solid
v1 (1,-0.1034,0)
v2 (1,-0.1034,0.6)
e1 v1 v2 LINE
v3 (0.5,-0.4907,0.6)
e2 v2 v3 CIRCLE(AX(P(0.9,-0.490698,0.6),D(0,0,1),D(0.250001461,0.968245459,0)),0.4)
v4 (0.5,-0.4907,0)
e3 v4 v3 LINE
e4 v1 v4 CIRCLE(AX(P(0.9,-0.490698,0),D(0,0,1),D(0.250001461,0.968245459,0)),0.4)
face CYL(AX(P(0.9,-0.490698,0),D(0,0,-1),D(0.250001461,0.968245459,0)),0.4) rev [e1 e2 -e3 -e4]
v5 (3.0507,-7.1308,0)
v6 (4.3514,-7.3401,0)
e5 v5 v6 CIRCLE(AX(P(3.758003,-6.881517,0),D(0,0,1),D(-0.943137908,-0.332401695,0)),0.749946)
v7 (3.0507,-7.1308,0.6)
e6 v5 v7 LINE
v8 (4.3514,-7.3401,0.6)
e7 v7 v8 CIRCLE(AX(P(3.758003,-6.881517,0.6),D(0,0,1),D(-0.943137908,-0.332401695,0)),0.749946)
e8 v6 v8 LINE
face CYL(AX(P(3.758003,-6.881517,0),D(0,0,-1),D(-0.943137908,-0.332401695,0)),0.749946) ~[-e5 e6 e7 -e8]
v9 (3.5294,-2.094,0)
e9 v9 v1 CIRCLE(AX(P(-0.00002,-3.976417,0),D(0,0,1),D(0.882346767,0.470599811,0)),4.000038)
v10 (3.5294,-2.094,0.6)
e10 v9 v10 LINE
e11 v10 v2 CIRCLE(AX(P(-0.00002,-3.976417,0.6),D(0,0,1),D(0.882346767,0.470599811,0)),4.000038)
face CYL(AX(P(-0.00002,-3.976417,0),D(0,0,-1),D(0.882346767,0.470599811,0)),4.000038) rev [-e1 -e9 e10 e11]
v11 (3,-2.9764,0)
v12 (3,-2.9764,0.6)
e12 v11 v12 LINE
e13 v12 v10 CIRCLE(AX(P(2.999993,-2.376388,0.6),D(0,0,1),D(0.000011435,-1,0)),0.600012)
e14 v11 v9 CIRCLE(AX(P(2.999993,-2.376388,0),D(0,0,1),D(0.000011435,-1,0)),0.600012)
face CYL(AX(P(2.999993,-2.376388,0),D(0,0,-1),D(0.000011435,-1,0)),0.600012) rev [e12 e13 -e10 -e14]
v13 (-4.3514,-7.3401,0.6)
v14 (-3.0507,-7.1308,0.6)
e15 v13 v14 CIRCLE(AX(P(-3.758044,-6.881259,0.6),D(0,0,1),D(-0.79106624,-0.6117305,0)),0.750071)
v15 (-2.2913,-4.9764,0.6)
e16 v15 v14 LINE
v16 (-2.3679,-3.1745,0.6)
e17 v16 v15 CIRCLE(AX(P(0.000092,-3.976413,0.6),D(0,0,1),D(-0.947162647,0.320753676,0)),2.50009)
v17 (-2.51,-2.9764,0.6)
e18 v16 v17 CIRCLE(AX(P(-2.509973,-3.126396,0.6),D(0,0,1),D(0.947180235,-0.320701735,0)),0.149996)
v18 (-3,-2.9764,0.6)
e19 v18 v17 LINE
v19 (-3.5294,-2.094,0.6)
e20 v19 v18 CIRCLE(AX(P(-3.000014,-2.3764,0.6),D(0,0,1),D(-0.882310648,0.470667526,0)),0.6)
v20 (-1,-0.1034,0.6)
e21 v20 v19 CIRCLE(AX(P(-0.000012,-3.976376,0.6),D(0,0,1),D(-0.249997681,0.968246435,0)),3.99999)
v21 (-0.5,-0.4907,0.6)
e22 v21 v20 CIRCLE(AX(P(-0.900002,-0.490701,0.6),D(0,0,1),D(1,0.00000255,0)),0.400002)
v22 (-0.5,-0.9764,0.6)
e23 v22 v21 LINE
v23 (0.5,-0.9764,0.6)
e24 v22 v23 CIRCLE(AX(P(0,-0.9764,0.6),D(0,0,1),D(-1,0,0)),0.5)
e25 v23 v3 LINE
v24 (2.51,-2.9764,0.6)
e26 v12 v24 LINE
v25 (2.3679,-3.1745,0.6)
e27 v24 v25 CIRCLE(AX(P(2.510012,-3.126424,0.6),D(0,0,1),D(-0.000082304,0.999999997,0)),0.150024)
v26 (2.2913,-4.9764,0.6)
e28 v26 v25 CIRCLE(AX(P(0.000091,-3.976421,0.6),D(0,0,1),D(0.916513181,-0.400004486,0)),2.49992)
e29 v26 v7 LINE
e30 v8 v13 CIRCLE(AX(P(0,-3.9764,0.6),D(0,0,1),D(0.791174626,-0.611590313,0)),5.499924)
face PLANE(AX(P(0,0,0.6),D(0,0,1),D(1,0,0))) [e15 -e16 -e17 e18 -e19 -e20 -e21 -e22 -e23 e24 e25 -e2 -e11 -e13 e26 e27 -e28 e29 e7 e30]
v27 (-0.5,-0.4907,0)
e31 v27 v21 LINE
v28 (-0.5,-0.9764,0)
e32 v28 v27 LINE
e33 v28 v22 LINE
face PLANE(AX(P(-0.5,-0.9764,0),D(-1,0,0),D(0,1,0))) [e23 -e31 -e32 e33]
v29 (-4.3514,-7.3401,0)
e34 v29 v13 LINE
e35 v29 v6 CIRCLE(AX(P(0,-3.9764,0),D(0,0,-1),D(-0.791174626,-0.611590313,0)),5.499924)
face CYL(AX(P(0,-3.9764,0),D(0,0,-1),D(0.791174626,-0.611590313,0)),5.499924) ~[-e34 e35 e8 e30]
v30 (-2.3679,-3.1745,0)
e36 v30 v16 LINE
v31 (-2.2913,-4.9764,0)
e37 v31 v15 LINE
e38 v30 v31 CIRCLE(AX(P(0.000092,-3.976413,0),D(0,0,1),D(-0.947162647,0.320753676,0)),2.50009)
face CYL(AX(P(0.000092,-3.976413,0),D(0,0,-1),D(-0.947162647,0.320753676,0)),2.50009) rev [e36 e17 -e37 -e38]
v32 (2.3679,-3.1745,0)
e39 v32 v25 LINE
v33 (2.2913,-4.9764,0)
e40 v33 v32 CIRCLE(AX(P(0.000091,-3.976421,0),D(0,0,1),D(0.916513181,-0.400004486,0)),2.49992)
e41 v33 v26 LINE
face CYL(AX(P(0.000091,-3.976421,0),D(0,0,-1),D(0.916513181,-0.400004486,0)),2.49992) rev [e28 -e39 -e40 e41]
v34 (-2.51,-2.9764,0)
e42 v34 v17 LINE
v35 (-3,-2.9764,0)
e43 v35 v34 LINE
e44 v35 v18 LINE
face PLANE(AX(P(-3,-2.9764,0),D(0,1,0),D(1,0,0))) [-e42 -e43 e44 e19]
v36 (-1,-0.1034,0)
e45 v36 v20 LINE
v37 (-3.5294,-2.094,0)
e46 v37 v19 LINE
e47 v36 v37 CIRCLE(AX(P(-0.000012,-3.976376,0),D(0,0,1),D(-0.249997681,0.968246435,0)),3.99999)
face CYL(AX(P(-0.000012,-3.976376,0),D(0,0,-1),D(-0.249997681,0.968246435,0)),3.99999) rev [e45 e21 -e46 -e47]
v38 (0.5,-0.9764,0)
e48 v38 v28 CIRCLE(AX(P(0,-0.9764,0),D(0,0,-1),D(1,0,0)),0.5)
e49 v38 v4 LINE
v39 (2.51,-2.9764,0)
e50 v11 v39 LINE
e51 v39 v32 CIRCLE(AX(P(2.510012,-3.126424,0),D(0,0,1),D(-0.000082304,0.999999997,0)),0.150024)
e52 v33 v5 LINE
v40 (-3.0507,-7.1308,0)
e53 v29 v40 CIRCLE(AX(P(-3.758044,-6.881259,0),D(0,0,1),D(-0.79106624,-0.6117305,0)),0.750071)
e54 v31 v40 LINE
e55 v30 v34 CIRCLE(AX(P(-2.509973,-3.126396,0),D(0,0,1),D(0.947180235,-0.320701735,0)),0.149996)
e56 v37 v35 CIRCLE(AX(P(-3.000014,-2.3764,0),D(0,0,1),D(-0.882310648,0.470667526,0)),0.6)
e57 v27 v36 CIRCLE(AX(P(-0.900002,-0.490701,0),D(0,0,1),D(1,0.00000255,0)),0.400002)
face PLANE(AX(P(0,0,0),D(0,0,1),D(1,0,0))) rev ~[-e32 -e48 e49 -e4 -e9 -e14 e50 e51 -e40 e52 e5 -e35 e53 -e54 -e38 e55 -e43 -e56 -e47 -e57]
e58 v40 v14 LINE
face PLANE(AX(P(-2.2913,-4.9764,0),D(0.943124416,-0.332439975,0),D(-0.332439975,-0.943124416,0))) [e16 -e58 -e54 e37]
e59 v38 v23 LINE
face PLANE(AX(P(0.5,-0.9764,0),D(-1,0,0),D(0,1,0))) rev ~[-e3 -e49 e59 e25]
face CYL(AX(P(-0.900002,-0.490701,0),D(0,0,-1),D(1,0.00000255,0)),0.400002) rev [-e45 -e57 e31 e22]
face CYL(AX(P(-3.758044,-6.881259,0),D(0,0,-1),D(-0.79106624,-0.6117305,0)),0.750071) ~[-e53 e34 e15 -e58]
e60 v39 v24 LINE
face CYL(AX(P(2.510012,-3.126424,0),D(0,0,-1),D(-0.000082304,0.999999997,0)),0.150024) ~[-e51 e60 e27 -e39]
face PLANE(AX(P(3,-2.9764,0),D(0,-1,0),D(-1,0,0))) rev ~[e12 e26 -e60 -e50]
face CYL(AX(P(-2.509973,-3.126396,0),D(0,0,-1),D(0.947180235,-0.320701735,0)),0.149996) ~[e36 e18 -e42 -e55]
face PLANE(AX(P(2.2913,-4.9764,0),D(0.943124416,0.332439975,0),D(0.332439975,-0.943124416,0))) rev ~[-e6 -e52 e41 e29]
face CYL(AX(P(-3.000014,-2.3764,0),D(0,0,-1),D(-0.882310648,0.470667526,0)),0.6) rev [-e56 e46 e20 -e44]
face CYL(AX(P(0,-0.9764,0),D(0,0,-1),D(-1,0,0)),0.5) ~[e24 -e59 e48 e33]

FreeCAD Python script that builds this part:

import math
import FreeCAD as App
import Part
import Sketcher
from FreeCAD import Vector

doc = App.newDocument("Part")
body = doc.addObject("PartDesign::Body", "Body")

# Sketch on XY plane
sketch1 = doc.addObject("Sketcher::SketchObject", "Sketch")
body.addObject(sketch1)
sketch1.AttachmentSupport = (doc.XY_Plane, [""])
sketch1.MapMode = "FlatFace"
sketch1.addGeometry([
    Part.ArcOfCircle(Part.Circle(Vector(0, -3.98, 0), Vector(0, 0, 1), 2.5), math.radians(161), math.radians(204)),  # 0
    Part.ArcOfCircle(Part.Circle(Vector(-2.51, -3.13, 0), Vector(0, 0, 1), 0.15), math.radians(-19), math.radians(90)),  # 1
    Part.LineSegment(Vector(-2.51, -2.98, 0), Vector(-3, -2.98, 0)),  # 2
    Part.ArcOfCircle(Part.Circle(Vector(-3, -2.38, 0), Vector(0, 0, 1), 0.6), math.radians(152), math.radians(270)),  # 3
    Part.ArcOfCircle(Part.Circle(Vector(0, -3.98, 0), Vector(0, 0, 1), 4), math.radians(104), math.radians(152)),  # 4
    Part.ArcOfCircle(Part.Circle(Vector(-0.9, -0.49, 0), Vector(0, 0, 1), 0.4), math.radians(0), math.radians(104)),  # 5
    Part.LineSegment(Vector(-0.5, -0.49, 0), Vector(-0.5, -0.98, 0)),  # 6
    Part.ArcOfCircle(Part.Circle(Vector(0, -0.98, 0), Vector(0, 0, 1), 0.5), math.radians(180), math.radians(360)),  # 7
    Part.LineSegment(Vector(0.5, -0.98, 0), Vector(0.5, -0.49, 0)),  # 8
    Part.ArcOfCircle(Part.Circle(Vector(0.9, -0.49, 0), Vector(0, 0, 1), 0.4), math.radians(76), math.radians(180)),  # 9
    Part.ArcOfCircle(Part.Circle(Vector(0, -3.98, 0), Vector(0, 0, 1), 4), math.radians(28), math.radians(76)),  # 10
    Part.ArcOfCircle(Part.Circle(Vector(3, -2.38, 0), Vector(0, 0, 1), 0.6), math.radians(-90), math.radians(28)),  # 11
    Part.LineSegment(Vector(3, -2.98, 0), Vector(2.51, -2.98, 0)),  # 12
    Part.ArcOfCircle(Part.Circle(Vector(2.51, -3.13, 0), Vector(0, 0, 1), 0.15), math.radians(90), math.radians(199)),  # 13
    Part.ArcOfCircle(Part.Circle(Vector(0, -3.98, 0), Vector(0, 0, 1), 2.5), math.radians(-24), math.radians(19)),  # 14
    Part.LineSegment(Vector(2.29, -4.98, 0), Vector(3.05, -7.13, 0)),  # 15
    Part.ArcOfCircle(Part.Circle(Vector(3.76, -6.88, 0), Vector(0, 0, 1), 0.75), math.radians(-161), math.radians(-38)),  # 16
    Part.ArcOfCircle(Part.Circle(Vector(0, -3.98, 0), Vector(0, 0, 1), 5.5), math.radians(-38), math.radians(218)),  # 17
    Part.ArcOfCircle(Part.Circle(Vector(-3.76, -6.88, 0), Vector(0, 0, 1), 0.75), math.radians(-142), math.radians(-19)),  # 18
    Part.LineSegment(Vector(-3.05, -7.13, 0), Vector(-2.29, -4.98, 0)),  # 19
], False)
sketch1.addConstraint([
    Sketcher.Constraint("Tangent", 0, 1, 1, 1),
    Sketcher.Constraint("Tangent", 1, 2, 2, 1),
    Sketcher.Constraint("Tangent", 2, 2, 3, 2),
    Sketcher.Constraint("Tangent", 3, 1, 4, 2),
    Sketcher.Constraint("Tangent", 4, 1, 5, 2),
    Sketcher.Constraint("Tangent", 5, 1, 6, 1),
    Sketcher.Constraint("Tangent", 6, 2, 7, 1),
    Sketcher.Constraint("Tangent", 7, 2, 8, 1),
    Sketcher.Constraint("Tangent", 8, 2, 9, 2),
    Sketcher.Constraint("Tangent", 9, 1, 10, 2),
    Sketcher.Constraint("Tangent", 10, 1, 11, 2),
    Sketcher.Constraint("Tangent", 11, 1, 12, 1),
    Sketcher.Constraint("Tangent", 12, 2, 13, 1),
    Sketcher.Constraint("Tangent", 13, 2, 14, 2),
    Sketcher.Constraint("Coincident", 14, 1, 15, 1),
    Sketcher.Constraint("Tangent", 15, 2, 16, 1),
    Sketcher.Constraint("Tangent", 16, 2, 17, 1),
    Sketcher.Constraint("Tangent", 17, 2, 18, 1),
    Sketcher.Constraint("Tangent", 18, 2, 19, 1),
    Sketcher.Constraint("Coincident", 19, 2, 0, 2),
    Sketcher.Constraint("Horizontal", 2),
    Sketcher.Constraint("Vertical", 6),
    Sketcher.Constraint("Vertical", 8),
    Sketcher.Constraint("Horizontal", 12),
    Sketcher.Constraint("Coincident", 4, 3, 0, 3),
    Sketcher.Constraint("Coincident", 10, 3, 0, 3),
    Sketcher.Constraint("Coincident", 14, 3, 0, 3),
    Sketcher.Constraint("Coincident", 17, 3, 0, 3),
    Sketcher.Constraint("Equal", 5, 9),
    Sketcher.Constraint("Equal", 4, 10),
    Sketcher.Constraint("Equal", 3, 11),
    Sketcher.Constraint("Equal", 1, 13),
    Sketcher.Constraint("Equal", 0, 14),
    Sketcher.Constraint("Equal", 16, 18),
    Sketcher.Constraint("Symmetric", 5, 3, 9, 3, -2),
    Sketcher.Constraint("Symmetric", 15, 2, 18, 2, -2),
    Sketcher.Constraint("Horizontal", 3, 3, 11, 3),
    Sketcher.Constraint("Radius", 4, 4.0),
    Sketcher.Constraint("Radius", 0, 2.5),
    Sketcher.Constraint("Radius", 3, 0.6),
    Sketcher.Constraint("Radius", 5, 0.4),
    Sketcher.Constraint("Radius", 7, 0.5),
    Sketcher.Constraint("Radius", 17, 5.5),
    Sketcher.Constraint("Radius", 1, 0.15),
    Sketcher.Constraint("Radius", 16, 0.75),
    Sketcher.Constraint("DistanceY", 0, 3, 1, 2, 1.0),
    Sketcher.Constraint("DistanceY", 0, 3, 7, 3, 3.0),
    Sketcher.Constraint("DistanceY", 14, 1, 12, 2, 2.0),
    Sketcher.Constraint("DistanceY", 17, 2, -1, 1, 7.34),
    Sketcher.Constraint("DistanceX", -1, 1, 16, 3, 3.758),
])
pad1 = doc.addObject("PartDesign::Pad", "Pad")
body.addObject(pad1)
pad1.Profile = sketch1
pad1.Length = 0.6

doc.recompute()
